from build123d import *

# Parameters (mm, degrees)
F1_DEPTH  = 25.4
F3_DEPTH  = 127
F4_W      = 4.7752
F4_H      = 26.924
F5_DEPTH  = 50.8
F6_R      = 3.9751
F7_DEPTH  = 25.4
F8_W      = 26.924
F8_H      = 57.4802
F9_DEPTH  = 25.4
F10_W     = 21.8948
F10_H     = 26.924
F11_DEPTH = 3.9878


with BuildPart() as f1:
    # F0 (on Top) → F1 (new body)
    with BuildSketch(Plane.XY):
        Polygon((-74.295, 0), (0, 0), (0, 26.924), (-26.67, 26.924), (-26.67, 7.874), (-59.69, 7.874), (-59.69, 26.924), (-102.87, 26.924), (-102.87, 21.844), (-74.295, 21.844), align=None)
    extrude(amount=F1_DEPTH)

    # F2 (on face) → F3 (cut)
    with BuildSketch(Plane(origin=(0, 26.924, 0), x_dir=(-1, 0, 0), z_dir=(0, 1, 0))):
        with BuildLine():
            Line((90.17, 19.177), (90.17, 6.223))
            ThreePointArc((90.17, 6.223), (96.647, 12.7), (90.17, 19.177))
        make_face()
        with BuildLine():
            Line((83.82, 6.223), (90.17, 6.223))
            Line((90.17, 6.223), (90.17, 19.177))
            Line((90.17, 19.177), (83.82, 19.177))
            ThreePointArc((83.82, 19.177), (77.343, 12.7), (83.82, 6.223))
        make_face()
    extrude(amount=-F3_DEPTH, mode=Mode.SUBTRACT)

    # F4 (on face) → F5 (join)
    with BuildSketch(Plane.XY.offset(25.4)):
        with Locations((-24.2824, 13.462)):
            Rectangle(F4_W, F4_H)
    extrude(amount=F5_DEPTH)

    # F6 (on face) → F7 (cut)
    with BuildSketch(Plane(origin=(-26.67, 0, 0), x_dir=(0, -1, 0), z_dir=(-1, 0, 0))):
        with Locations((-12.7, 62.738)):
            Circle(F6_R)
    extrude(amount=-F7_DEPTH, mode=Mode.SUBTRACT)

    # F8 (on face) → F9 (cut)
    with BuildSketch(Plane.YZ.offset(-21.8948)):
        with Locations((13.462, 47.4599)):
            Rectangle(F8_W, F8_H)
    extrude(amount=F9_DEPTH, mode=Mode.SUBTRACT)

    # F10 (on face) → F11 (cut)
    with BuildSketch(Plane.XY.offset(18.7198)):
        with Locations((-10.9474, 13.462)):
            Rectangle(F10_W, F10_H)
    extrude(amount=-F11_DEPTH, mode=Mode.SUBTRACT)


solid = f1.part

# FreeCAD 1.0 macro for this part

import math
import FreeCAD as App
import Part
import Sketcher
Q = App.Units.Quantity


def add_polygon(sketch, points):
    """Adds a closed chain of lines whose ends are joined by coincident constraints."""
    first, n = sketch.GeometryCount, len(points)
    for a, b in zip(points, points[1:] + points[:1]):
        sketch.addGeometry(Part.LineSegment(App.Vector(*a, 0), App.Vector(*b, 0)), False)
    for i in range(n):
        sketch.addConstraint(Sketcher.Constraint("Coincident", first + i, 2, first + (i + 1) % n, 1))

doc = App.newDocument("Part")
body = doc.addObject("PartDesign::Body", "Body")

# Sketch on XY plane
sketch1 = doc.addObject("Sketcher::SketchObject", "Sketch")
body.addObject(sketch1)
sketch1.AttachmentSupport = (doc.XY_Plane, [""])
sketch1.MapMode = "FlatFace"
add_polygon(sketch1, [(-74, 0), (0, 0), (0, 27), (-27, 27), (-27, 8), (-60, 8), (-60, 27), (-103, 27), (-103, 22), (-74, 22)])  # lines 0-9
sketch1.addConstraint([
    Sketcher.Constraint("Horizontal", 0),
    Sketcher.Constraint("Vertical", 1),
    Sketcher.Constraint("Horizontal", 2),
    Sketcher.Constraint("Vertical", 3),
    Sketcher.Constraint("Horizontal", 4),
    Sketcher.Constraint("Vertical", 5),
    Sketcher.Constraint("Horizontal", 6),
    Sketcher.Constraint("Vertical", 7),
    Sketcher.Constraint("Horizontal", 8),
    Sketcher.Constraint("Vertical", 9),
    Sketcher.Constraint("Coincident", 0, 2, -1, 1),
    Sketcher.Constraint("Horizontal", 2, 2, 5, 2),
    Sketcher.Constraint("DistanceX", 4, 2, 4, 1, Q("1.3 in")),
    Sketcher.Constraint("DistanceX", 6, 2, 6, 1, Q("1.7 in")),
    Sketcher.Constraint("DistanceY", 7, 2, 7, 1, Q("0.2 in")),
    Sketcher.Constraint("DistanceX", 2, 2, 2, 1, Q("1.05 in")),
    Sketcher.Constraint("DistanceY", 1, 1, 1, 2, Q("1.06 in")),
    Sketcher.Constraint("DistanceY", 3, 2, 3, 1, Q("0.75 in")),
    Sketcher.Constraint("DistanceX", 0, 1, 0, 2, Q("2.925 in")),
])
pad1 = doc.addObject("PartDesign::Pad", "Pad")
body.addObject(pad1)
pad1.Profile = sketch1
pad1.Length = Q("1 in")

# Sketch on XZ plane
sketch2 = doc.addObject("Sketcher::SketchObject", "Sketch001")
body.addObject(sketch2)
sketch2.AttachmentSupport = (doc.XZ_Plane, [""])
sketch2.MapMode = "FlatFace"
sketch2.AttachmentOffset = App.Placement(App.Vector(0, 0, -1.06 * 25.4), App.Rotation())
sketch2.addGeometry([
    Part.ArcOfCircle(Part.Circle(App.Vector(-90, 13, 0), App.Vector(0, 0, 1), 6), math.radians(90), math.radians(270)),
    Part.LineSegment(App.Vector(-90, 19, 0), App.Vector(-84, 19, 0)),
    Part.ArcOfCircle(Part.Circle(App.Vector(-84, 13, 0), App.Vector(0, 0, 1), 6), math.radians(-90), math.radians(90)),
    Part.LineSegment(App.Vector(-84, 6, 0), App.Vector(-90, 6, 0)),
], False)
sketch2.addConstraint([
    Sketcher.Constraint("Tangent", 0, 1, 1, 1),
    Sketcher.Constraint("Tangent", 1, 2, 2, 2),
    Sketcher.Constraint("Tangent", 2, 1, 3, 1),
    Sketcher.Constraint("Tangent", 3, 2, 0, 2),
    Sketcher.Constraint("Horizontal", 1),
    Sketcher.Constraint("Horizontal", 3),
    Sketcher.Constraint("Radius", 0, Q("0.255 in")),
    Sketcher.Constraint("DistanceX", 1, 1, 1, 2, Q("0.25 in")),
    Sketcher.Constraint("DistanceY", -1, 1, 0, 3, Q("0.5 in")),
    Sketcher.Constraint("DistanceX", 2, 3, -1, 1, Q("3.3 in")),
])
pocket1 = doc.addObject("PartDesign::Pocket", "Pocket")
body.addObject(pocket1)
pocket1.Profile = sketch2
pocket1.Length = Q("5 in")
pocket1.Reversed = True

# Sketch on XY plane
sketch3 = doc.addObject("Sketcher::SketchObject", "Sketch002")
body.addObject(sketch3)
sketch3.AttachmentSupport = (doc.XY_Plane, [""])
sketch3.MapMode = "FlatFace"
sketch3.AttachmentOffset = App.Placement(App.Vector(0, 0, 1 * 25.4), App.Rotation())
add_polygon(sketch3, [(-26.7, 26.9), (-26.7, 0), (-21.9, 0), (-21.9, 26.9)])  # lines 0-3
sketch3.addConstraint([
    Sketcher.Constraint("Vertical", 0),
    Sketcher.Constraint("Horizontal", 1),
    Sketcher.Constraint("Vertical", 2),
    Sketcher.Constraint("Horizontal", 3),
    Sketcher.Constraint("PointOnObject", 0, 2, -1),
    Sketcher.Constraint("DistanceY", 0, 2, 0, 1, Q("1.06 in")),
    Sketcher.Constraint("DistanceX", 1, 1, 1, 2, Q("0.188 in")),
    Sketcher.Constraint("DistanceX", 0, 2, -1, 1, Q("1.05 in")),
])
pad2 = doc.addObject("PartDesign::Pad", "Pad001")
body.addObject(pad2)
pad2.Profile = sketch3
pad2.Length = Q("2 in")

# Sketch on YZ plane
sketch4 = doc.addObject("Sketcher::SketchObject", "Sketch003")
body.addObject(sketch4)
sketch4.AttachmentSupport = (doc.YZ_Plane, [""])
sketch4.MapMode = "FlatFace"
sketch4.AttachmentOffset = App.Placement(App.Vector(0, 0, -1.05 * 25.4), App.Rotation())
sketch4.addGeometry(Part.Circle(App.Vector(12.7, 62.7, 0), App.Vector(0, 0, 1), 4), False)
sketch4.addConstraint([
    Sketcher.Constraint("Diameter", 0, Q("0.313 in")),
    Sketcher.Constraint("DistanceX", -1, 1, 0, 3, Q("0.5 in")),
    Sketcher.Constraint("DistanceY", -1, 1, 0, 3, Q("2.47 in")),
])
pocket2 = doc.addObject("PartDesign::Pocket", "Pocket001")
body.addObject(pocket2)
pocket2.Profile = sketch4
pocket2.Length = Q("1 in")
pocket2.Reversed = True

# Sketch on YZ plane
sketch5 = doc.addObject("Sketcher::SketchObject", "Sketch004")
body.addObject(sketch5)
sketch5.AttachmentSupport = (doc.YZ_Plane, [""])
sketch5.MapMode = "FlatFace"
sketch5.AttachmentOffset = App.Placement(App.Vector(0, 0, -0.862 * 25.4), App.Rotation())
add_polygon(sketch5, [(0, 76), (0, 19), (27, 19), (27, 76)])  # lines 0-3
sketch5.addConstraint([
    Sketcher.Constraint("Vertical", 0),
    Sketcher.Constraint("Horizontal", 1),
    Sketcher.Constraint("Vertical", 2),
    Sketcher.Constraint("Horizontal", 3),
    Sketcher.Constraint("PointOnObject", 0, 2, -2),
    Sketcher.Constraint("DistanceY", -1, 1, 2, 2, Q("3 in")),
    Sketcher.Constraint("DistanceX", 1, 1, 1, 2, Q("1.06 in")),
    Sketcher.Constraint("DistanceY", 0, 2, 0, 1, Q("2.263 in")),
])
pocket3 = doc.addObject("PartDesign::Pocket", "Pocket002")
body.addObject(pocket3)
pocket3.Profile = sketch5
pocket3.Length = Q("1 in")
pocket3.Reversed = True

# Sketch on XY plane
sketch6 = doc.addObject("Sketcher::SketchObject", "Sketch005")
body.addObject(sketch6)
sketch6.AttachmentSupport = (doc.XY_Plane, [""])
sketch6.MapMode = "FlatFace"
sketch6.AttachmentOffset = App.Placement(App.Vector(0, 0, 0.737 * 25.4), App.Rotation())
add_polygon(sketch6, [(-22, 27), (-22, 0), (0, 0), (0, 27)])  # lines 0-3
sketch6.addConstraint([
    Sketcher.Constraint("Vertical", 0),
    Sketcher.Constraint("Horizontal", 1),
    Sketcher.Constraint("Vertical", 2),
    Sketcher.Constraint("Horizontal", 3),
    Sketcher.Constraint("Coincident", 1, 2, -1, 1),
    Sketcher.Constraint("DistanceY", 0, 2, 0, 1, Q("1.06 in")),
    Sketcher.Constraint("DistanceX", 1, 1, 1, 2, Q("0.862 in")),
])
pocket4 = doc.addObject("PartDesign::Pocket", "Pocket003")
body.addObject(pocket4)
pocket4.Profile = sketch6
pocket4.Length = Q("0.157 in")

doc.recompute()
